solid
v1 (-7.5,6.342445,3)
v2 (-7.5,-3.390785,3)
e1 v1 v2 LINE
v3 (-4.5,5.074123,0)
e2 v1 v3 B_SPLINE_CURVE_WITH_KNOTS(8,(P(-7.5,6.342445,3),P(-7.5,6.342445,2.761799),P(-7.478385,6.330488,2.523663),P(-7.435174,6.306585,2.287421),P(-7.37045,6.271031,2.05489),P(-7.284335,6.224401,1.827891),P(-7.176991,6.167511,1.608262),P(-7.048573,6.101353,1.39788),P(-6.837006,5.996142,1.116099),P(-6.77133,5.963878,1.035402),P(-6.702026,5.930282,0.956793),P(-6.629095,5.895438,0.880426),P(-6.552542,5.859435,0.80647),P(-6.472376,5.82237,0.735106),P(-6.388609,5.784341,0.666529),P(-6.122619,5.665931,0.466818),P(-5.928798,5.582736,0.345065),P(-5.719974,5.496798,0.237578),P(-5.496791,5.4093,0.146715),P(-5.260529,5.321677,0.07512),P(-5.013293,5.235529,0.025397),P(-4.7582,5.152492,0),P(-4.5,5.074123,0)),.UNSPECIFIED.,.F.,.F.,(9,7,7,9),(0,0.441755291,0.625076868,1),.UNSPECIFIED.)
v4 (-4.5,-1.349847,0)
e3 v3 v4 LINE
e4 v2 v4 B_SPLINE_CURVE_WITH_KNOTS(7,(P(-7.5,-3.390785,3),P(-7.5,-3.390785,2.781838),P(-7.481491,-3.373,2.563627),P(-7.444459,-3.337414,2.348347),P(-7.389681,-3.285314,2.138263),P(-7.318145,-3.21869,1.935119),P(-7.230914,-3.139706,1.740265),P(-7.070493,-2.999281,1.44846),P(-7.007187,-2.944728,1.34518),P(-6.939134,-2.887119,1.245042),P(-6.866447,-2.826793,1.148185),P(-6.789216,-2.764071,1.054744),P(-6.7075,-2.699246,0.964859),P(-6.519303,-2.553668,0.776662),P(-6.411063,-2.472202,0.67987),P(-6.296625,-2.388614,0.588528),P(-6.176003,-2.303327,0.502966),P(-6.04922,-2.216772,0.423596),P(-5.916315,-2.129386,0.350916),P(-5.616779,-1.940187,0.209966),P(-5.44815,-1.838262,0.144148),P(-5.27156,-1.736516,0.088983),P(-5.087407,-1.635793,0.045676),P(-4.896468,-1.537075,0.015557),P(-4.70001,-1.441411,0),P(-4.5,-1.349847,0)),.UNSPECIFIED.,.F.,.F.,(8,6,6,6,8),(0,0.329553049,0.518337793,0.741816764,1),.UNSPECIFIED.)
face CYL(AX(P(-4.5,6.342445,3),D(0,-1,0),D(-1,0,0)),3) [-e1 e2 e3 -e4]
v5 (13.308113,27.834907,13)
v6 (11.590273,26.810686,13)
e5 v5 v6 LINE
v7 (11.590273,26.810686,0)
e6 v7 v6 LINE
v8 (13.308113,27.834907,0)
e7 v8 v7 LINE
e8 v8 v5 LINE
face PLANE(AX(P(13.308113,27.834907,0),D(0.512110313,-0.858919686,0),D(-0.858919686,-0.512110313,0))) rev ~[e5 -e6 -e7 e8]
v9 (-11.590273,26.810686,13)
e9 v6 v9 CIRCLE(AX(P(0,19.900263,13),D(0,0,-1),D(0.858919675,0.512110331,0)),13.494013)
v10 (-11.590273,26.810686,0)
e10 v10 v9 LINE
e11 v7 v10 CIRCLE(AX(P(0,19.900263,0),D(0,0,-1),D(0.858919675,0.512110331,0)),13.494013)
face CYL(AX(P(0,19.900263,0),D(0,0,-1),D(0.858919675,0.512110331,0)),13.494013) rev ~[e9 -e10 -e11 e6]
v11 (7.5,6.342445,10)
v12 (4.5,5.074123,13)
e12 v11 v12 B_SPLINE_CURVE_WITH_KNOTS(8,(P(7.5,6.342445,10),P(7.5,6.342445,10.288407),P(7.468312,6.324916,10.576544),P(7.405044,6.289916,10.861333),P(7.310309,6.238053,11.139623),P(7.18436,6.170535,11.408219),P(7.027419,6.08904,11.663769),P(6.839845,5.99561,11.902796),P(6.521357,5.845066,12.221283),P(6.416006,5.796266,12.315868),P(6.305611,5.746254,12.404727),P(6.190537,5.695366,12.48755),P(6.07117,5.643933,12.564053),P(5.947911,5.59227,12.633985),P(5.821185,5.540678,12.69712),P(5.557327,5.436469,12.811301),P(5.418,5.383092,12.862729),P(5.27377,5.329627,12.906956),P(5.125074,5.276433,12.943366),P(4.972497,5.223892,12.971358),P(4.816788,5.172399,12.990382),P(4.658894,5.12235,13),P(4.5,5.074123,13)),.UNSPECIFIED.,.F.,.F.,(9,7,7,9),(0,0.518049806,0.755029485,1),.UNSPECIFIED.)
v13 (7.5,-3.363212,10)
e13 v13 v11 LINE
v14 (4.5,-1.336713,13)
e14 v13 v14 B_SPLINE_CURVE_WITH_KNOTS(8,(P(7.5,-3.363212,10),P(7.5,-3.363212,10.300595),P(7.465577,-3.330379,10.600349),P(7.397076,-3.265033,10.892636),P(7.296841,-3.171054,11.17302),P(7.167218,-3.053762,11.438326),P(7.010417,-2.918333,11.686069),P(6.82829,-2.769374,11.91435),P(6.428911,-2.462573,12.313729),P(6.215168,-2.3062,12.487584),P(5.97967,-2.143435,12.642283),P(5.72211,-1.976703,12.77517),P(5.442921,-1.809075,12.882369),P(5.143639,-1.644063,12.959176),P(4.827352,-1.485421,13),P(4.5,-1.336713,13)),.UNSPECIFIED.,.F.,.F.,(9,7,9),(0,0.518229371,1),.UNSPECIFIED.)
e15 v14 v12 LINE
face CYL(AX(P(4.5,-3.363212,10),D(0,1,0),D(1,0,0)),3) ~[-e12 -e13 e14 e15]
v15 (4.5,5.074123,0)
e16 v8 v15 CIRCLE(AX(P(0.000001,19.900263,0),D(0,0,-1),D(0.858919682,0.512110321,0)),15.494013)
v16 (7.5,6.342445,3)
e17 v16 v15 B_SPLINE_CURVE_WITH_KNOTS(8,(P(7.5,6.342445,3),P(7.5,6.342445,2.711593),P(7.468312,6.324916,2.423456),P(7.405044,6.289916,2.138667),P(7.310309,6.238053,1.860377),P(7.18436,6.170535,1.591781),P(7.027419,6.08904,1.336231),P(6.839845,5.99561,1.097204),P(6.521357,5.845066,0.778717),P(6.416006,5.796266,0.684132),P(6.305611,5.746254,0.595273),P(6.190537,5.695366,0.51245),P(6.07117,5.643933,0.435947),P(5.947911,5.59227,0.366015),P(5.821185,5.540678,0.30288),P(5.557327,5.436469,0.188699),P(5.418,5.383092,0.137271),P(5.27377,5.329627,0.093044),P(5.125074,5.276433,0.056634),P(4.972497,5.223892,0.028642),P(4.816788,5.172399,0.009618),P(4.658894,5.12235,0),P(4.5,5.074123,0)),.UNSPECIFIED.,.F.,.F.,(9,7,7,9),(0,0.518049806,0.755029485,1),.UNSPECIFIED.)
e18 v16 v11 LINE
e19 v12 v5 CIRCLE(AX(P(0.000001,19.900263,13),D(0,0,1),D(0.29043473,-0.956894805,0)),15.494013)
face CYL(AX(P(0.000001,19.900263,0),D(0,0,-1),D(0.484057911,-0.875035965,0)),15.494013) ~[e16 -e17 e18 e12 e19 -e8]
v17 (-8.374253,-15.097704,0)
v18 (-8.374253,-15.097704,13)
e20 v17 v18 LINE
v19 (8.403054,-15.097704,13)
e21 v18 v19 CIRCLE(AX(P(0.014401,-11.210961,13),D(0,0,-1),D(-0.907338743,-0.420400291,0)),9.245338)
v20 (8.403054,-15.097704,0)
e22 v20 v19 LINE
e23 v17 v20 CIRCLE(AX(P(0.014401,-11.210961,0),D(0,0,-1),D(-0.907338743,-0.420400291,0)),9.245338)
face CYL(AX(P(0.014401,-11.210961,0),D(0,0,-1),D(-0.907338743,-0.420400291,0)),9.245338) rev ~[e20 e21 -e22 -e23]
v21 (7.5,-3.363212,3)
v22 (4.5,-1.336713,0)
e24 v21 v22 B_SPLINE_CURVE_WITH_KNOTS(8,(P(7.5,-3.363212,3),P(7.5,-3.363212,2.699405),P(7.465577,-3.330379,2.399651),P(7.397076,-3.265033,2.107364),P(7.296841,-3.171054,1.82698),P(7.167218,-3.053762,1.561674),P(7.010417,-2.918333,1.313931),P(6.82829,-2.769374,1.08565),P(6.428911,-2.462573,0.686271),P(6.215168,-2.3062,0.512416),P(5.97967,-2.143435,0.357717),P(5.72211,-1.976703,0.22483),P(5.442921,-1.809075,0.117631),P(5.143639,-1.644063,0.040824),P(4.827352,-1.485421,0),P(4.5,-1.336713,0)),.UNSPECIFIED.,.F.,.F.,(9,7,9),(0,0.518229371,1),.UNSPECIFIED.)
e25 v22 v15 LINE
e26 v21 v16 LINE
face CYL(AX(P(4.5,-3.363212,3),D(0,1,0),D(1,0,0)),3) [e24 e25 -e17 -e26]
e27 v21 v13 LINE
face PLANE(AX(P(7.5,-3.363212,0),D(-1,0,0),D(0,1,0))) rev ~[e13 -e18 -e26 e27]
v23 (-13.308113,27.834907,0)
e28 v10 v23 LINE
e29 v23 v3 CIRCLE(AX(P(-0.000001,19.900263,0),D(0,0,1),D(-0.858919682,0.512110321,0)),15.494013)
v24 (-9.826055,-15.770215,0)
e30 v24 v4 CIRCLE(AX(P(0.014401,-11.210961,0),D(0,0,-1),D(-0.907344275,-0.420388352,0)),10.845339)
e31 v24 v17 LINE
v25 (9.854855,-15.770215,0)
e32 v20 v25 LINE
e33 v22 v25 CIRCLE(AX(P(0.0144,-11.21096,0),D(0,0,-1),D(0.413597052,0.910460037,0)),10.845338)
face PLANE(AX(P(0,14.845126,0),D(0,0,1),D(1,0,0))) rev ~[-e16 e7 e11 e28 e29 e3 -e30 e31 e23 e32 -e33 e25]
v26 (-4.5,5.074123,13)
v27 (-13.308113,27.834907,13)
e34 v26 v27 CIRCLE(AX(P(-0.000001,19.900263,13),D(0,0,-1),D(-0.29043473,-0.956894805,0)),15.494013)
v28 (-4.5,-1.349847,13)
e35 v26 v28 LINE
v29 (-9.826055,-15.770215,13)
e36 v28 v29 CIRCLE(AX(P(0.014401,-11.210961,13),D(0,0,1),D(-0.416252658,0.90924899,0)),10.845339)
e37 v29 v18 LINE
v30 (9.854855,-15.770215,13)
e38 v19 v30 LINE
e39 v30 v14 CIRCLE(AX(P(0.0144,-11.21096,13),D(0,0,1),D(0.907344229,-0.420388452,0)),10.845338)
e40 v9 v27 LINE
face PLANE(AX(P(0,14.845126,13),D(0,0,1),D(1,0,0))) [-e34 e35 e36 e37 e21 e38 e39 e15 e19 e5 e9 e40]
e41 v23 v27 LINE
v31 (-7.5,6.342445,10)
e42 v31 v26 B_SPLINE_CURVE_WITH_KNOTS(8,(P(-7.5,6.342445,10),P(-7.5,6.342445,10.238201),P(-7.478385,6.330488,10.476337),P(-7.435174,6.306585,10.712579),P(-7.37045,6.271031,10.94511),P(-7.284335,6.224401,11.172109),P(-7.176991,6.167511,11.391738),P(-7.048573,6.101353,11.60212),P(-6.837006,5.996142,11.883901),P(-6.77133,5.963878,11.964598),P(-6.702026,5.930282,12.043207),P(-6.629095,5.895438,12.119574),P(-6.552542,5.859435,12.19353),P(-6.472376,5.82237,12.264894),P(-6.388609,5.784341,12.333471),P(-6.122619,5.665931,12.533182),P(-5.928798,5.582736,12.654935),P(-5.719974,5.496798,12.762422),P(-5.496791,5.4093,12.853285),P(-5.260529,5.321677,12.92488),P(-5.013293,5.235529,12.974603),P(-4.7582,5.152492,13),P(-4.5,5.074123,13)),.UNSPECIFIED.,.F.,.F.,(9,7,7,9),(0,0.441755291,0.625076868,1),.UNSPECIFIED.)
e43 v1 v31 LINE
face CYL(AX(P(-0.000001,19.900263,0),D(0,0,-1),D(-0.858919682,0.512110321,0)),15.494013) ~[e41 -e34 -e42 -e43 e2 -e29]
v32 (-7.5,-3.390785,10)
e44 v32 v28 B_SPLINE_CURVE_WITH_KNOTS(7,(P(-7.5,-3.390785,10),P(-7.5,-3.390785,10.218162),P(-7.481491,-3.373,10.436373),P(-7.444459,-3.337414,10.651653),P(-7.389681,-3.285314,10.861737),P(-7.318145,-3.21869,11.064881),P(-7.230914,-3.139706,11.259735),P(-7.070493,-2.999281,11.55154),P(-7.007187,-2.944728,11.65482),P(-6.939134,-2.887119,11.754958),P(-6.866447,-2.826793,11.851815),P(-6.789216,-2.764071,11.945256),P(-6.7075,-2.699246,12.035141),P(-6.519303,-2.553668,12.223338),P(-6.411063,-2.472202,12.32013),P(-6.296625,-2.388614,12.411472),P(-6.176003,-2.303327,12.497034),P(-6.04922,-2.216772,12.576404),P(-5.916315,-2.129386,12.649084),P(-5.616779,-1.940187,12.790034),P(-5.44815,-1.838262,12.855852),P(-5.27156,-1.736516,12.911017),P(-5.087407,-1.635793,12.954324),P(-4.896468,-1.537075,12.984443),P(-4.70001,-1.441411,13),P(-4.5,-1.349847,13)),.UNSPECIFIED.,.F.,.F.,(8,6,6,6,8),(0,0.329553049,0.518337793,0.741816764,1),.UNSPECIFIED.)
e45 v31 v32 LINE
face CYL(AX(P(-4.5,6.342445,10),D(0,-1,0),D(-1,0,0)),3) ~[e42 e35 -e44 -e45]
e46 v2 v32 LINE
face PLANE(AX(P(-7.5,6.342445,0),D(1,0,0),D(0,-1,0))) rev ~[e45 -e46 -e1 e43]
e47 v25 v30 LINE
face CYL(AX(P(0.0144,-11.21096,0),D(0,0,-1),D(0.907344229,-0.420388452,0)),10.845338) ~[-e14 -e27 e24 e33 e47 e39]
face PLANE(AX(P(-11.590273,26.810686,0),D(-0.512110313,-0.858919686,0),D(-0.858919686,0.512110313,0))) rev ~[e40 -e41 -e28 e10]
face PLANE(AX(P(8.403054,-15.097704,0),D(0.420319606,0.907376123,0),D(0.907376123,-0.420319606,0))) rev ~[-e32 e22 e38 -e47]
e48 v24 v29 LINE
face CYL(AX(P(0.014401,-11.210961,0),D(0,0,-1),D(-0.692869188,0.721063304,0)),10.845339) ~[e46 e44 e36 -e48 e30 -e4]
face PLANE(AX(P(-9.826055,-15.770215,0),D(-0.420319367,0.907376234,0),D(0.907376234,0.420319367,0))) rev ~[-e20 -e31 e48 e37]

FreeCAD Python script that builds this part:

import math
import FreeCAD as App
import Part
import Sketcher
from FreeCAD import Vector


def edges_at(feature, points):
    """Names of the edges that pass closest to the given points."""
    edges = feature.Shape.Edges
    near = lambda p: min(range(len(edges)), key=lambda i: edges[i].distToShape(Part.Vertex(*p))[0])
    return sorted({f"Edge{near(p) + 1}" for p in points})

doc = App.newDocument("Part")
body = doc.addObject("PartDesign::Body", "Body")

sketch1 = doc.addObject("Sketcher::SketchObject", "Sketch")
body.addObject(sketch1)
sketch1.AttachmentSupport = (doc.XY_Plane, [""])
sketch1.MapMode = "FlatFace"
sketch1.addGeometry(Part.ArcOfCircle(Part.Circle(Vector(0, 19.9, 0), Vector(0, 0, 1), 13.5), math.radians(149), math.radians(391)), False)
sketch1.addGeometry(Part.LineSegment(Vector(-11.6, 26.8, 0), Vector(-13.3, 27.8, 0)), False)
sketch1.addGeometry(Part.ArcOfCircle(Part.Circle(Vector(0, 19.9, 0), Vector(0, 0, 1), 15.5), math.radians(149), math.radians(241)), False)
sketch1.addGeometry(Part.LineSegment(Vector(-7.5, 6.3, 0), Vector(-7.5, -3.4, 0)), False)
sketch1.addGeometry(Part.ArcOfCircle(Part.Circle(Vector(0, -11.2, 0), Vector(0, 0, 1), 10.8), math.radians(134), math.radians(205)), False)
sketch1.addGeometry(Part.LineSegment(Vector(-9.8, -15.8, 0), Vector(-8.4, -15.1, 0)), False)
sketch1.addGeometry(Part.ArcOfCircle(Part.Circle(Vector(0, -11.2, 0), Vector(0, 0, 1), 9.2), math.radians(-25), math.radians(205)), False)
sketch1.addGeometry(Part.LineSegment(Vector(8.4, -15.1, 0), Vector(9.9, -15.8, 0)), False)
sketch1.addGeometry(Part.ArcOfCircle(Part.Circle(Vector(0, -11.2, 0), Vector(0, 0, 1), 10.8), math.radians(-25), math.radians(46)), False)
sketch1.addGeometry(Part.LineSegment(Vector(7.5, -3.4, 0), Vector(7.5, 6.3, 0)), False)
sketch1.addGeometry(Part.ArcOfCircle(Part.Circle(Vector(0, 19.9, 0), Vector(0, 0, 1), 15.5), math.radians(-61), math.radians(31)), False)
sketch1.addGeometry(Part.LineSegment(Vector(13.3, 27.8, 0), Vector(11.6, 26.8, 0)), False)
sketch1.addConstraint(Sketcher.Constraint("Coincident", 0, 1, 1, 1))
sketch1.addConstraint(Sketcher.Constraint("Coincident", 1, 2, 2, 1))
sketch1.addConstraint(Sketcher.Constraint("Coincident", 2, 2, 3, 1))
sketch1.addConstraint(Sketcher.Constraint("Coincident", 3, 2, 4, 1))
sketch1.addConstraint(Sketcher.Constraint("Coincident", 4, 2, 5, 1))
sketch1.addConstraint(Sketcher.Constraint("Coincident", 5, 2, 6, 2))
sketch1.addConstraint(Sketcher.Constraint("Coincident", 6, 1, 7, 1))
sketch1.addConstraint(Sketcher.Constraint("Coincident", 7, 2, 8, 1))
sketch1.addConstraint(Sketcher.Constraint("Coincident", 8, 2, 9, 1))
sketch1.addConstraint(Sketcher.Constraint("Coincident", 9, 2, 10, 1))
sketch1.addConstraint(Sketcher.Constraint("Coincident", 10, 2, 11, 1))
sketch1.addConstraint(Sketcher.Constraint("Coincident", 11, 2, 0, 2))
sketch1.addConstraint(Sketcher.Constraint("Vertical", 3))
sketch1.addConstraint(Sketcher.Constraint("Vertical", 9))
sketch1.addConstraint(Sketcher.Constraint("Coincident", 2, 3, 0, 3))
sketch1.addConstraint(Sketcher.Constraint("Coincident", 6, 3, 4, 3))
sketch1.addConstraint(Sketcher.Constraint("Coincident", 8, 3, 4, 3))
sketch1.addConstraint(Sketcher.Constraint("Coincident", 10, 3, 0, 3))
sketch1.addConstraint(Sketcher.Constraint("Equal", 4, 8))
sketch1.addConstraint(Sketcher.Constraint("Equal", 2, 10))
sketch1.addConstraint(Sketcher.Constraint("Symmetric", 2, 2, 9, 2, -2))
sketch1.addConstraint(Sketcher.Constraint("Horizontal", 5, 2, 6, 1))
sketch1.addConstraint(Sketcher.Constraint("Horizontal", 4, 2, 7, 2))
sketch1.addConstraint(Sketcher.Constraint("Horizontal", 1, 2, 10, 2))
sketch1.addConstraint(Sketcher.Constraint("Horizontal", 0, 1, 11, 2))
sketch1.addConstraint(Sketcher.Constraint("Distance", 1, 2.000001))
sketch1.addConstraint(Sketcher.Constraint("DistanceX", 2, 2, 9, 2, 15.0))
sketch1.addConstraint(Sketcher.Constraint("Distance", 5, 1.6))
sketch1.addConstraint(Sketcher.Constraint("Radius", 4, 10.845339))
sketch1.addConstraint(Sketcher.Constraint("Radius", 0, 13.494013))
sketch1.addConstraint(Sketcher.Constraint("DistanceY", 3, 2, 3, 1, 9.73323))
sketch1.addConstraint(Sketcher.Constraint("DistanceX", -1, 1, 4, 3, 0.014401))
sketch1.addConstraint(Sketcher.Constraint("DistanceX", 4, 2, 5, 2, 1.451802))
sketch1.addConstraint(Sketcher.Constraint("DistanceY", 4, 3, -1, 1, 11.210961))
sketch1.addConstraint(Sketcher.Constraint("DistanceX", 1, 2, 0, 1, 1.71784))
sketch1.addConstraint(Sketcher.Constraint("DistanceY", 4, 2, 3, 2, 12.37943))
sketch1.addConstraint(Sketcher.Constraint("DistanceY", 9, 2, 11, 2, 20.468241))
pad1 = doc.addObject("PartDesign::Pad", "Pad")
body.addObject(pad1)
pad1.Profile = sketch1
pad1.Length = 13
doc.recompute()

fillet = doc.addObject("PartDesign::Fillet", "Fillet")
body.addObject(fillet)
fillet.Base = (pad1, edges_at(pad1, [
    (7.5, 1.49, 13),
    (-7.5, 1.476, 13),
    (7.5, 1.49, 0),
    (-7.5, 1.476, 0),
]))
fillet.Radius = 3

doc.recompute()
